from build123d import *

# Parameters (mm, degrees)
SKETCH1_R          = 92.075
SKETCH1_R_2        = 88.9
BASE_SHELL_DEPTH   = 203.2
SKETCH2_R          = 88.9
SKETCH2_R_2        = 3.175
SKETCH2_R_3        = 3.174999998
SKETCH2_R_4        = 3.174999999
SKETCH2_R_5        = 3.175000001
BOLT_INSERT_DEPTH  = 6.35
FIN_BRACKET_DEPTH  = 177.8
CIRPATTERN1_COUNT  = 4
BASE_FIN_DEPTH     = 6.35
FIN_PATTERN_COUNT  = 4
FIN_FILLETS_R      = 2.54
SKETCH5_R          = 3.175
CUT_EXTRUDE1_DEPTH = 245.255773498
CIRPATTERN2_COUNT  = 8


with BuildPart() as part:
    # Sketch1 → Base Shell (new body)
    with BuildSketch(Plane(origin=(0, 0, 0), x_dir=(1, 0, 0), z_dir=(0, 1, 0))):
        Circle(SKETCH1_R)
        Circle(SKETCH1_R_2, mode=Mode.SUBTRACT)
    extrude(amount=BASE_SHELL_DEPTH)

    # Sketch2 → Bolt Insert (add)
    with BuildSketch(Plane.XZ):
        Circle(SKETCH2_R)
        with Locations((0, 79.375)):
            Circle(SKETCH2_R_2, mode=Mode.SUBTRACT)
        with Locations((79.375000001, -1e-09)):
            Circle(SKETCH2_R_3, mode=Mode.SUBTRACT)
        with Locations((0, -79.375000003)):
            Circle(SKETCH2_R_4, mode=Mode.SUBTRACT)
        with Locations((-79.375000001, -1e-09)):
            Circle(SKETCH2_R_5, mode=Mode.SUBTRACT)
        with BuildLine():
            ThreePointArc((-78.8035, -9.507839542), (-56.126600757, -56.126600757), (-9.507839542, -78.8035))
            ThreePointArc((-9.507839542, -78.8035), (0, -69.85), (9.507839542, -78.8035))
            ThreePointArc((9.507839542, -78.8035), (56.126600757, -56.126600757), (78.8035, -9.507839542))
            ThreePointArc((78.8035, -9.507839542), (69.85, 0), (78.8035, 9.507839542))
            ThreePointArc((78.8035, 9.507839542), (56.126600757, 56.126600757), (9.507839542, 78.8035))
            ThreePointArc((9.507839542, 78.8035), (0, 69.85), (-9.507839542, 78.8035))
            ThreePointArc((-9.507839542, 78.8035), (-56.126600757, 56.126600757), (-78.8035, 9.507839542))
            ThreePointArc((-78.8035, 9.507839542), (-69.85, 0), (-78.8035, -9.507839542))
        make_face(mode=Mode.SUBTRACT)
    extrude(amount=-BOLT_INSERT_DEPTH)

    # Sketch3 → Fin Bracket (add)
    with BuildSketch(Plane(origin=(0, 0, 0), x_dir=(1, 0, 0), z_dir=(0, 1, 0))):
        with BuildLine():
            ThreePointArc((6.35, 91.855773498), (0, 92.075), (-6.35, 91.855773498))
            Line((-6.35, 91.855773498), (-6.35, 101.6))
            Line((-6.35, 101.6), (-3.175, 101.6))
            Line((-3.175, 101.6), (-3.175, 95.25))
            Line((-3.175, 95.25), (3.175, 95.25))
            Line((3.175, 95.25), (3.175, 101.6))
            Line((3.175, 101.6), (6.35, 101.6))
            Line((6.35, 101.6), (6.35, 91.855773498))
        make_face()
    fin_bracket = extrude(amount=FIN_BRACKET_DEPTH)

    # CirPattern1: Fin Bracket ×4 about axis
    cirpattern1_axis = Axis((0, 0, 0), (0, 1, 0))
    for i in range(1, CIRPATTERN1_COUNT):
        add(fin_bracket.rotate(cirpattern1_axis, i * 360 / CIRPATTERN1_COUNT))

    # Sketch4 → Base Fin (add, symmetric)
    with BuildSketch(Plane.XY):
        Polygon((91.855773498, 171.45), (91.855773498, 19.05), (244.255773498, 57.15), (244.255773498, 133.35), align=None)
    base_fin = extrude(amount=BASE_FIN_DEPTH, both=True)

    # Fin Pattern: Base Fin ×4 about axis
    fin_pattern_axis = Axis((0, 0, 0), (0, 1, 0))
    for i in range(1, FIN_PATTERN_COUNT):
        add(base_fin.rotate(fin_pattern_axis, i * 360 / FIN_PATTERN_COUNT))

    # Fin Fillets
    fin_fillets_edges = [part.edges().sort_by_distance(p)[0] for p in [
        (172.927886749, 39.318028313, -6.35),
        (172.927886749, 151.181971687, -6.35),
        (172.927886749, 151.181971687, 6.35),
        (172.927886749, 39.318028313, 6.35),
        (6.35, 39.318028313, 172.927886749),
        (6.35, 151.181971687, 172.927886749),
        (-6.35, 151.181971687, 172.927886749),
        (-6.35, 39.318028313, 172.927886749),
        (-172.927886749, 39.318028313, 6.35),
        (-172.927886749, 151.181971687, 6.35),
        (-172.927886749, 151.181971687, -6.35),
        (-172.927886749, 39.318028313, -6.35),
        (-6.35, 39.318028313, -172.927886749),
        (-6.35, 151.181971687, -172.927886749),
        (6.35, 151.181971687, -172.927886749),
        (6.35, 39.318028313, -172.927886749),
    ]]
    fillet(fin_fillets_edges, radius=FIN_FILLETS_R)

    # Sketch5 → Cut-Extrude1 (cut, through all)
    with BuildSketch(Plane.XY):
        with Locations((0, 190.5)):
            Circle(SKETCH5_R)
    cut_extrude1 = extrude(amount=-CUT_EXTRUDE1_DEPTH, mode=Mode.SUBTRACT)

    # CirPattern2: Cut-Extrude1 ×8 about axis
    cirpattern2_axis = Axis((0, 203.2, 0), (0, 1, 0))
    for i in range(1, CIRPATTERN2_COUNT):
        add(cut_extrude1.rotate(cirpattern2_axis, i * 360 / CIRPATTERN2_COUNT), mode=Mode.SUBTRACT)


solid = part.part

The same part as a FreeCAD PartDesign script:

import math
import FreeCAD as App
import Part
import Sketcher
from FreeCAD import Vector
Q = App.Units.Quantity


def edges_at(feature, points):
    """Names of the edges that pass closest to the given points."""
    edges = feature.Shape.Edges
    near = lambda p: min(range(len(edges)), key=lambda i: edges[i].distToShape(Part.Vertex(*p))[0])
    return sorted({f"Edge{near(p) + 1}" for p in points})


def add_polygon(sketch, points):
    """Adds a closed chain of lines whose ends are joined by coincident constraints."""
    first, n = sketch.GeometryCount, len(points)
    for a, b in zip(points, points[1:] + points[:1]):
        sketch.addGeometry(Part.LineSegment(App.Vector(*a, 0), App.Vector(*b, 0)), False)
    for i in range(n):
        sketch.addConstraint(Sketcher.Constraint("Coincident", first + i, 2, first + (i + 1) % n, 1))

doc = App.newDocument("Part")
body = doc.addObject("PartDesign::Body", "Body")

sketch1 = body.newObject("Sketcher::SketchObject", "Sketch")
sketch1.AttachmentSupport = (doc.getObject("XZ_Plane"), [""])
sketch1.MapMode = "FlatFace"
sketch1.addGeometry(Part.Circle(Vector(0, 0, 0), Vector(0, 0, 1), 92.075), False)
sketch1.addGeometry(Part.Circle(Vector(0, 0, 0), Vector(0, 0, 1), 88.9), False)
sketch1.addConstraint(Sketcher.Constraint("Coincident", 0, 3, -1, 1))
sketch1.addConstraint(Sketcher.Constraint("Coincident", 1, 3, -1, 1))
sketch1.addConstraint(Sketcher.Constraint("Diameter", 1, Q("7 in")))
sketch1.addConstraint(Sketcher.Constraint("Diameter", 0, Q("7.25 in")))
pad1 = body.newObject("PartDesign::Pad", "Pad")
pad1.Profile = sketch1
pad1.Length = Q("8 in")
pad1.Reversed = True

sketch2 = body.newObject("Sketcher::SketchObject", "Sketch001")
sketch2.AttachmentSupport = (doc.getObject("XZ_Plane"), [""])
sketch2.MapMode = "FlatFace"
sketch2.addGeometry(Part.Circle(Vector(0, 0, 0), Vector(0, 0, 1), 88.9), False)
sketch2.addGeometry(Part.Circle(Vector(-79.375, 0, 0), Vector(0, 0, 1), 3.175), False)
sketch2.addGeometry(Part.Circle(Vector(0, -79.375, 0), Vector(0, 0, 1), 3.175), False)
sketch2.addGeometry(Part.Circle(Vector(79.375, 0, 0), Vector(0, 0, 1), 3.175), False)
sketch2.addGeometry(Part.ArcOfCircle(Part.Circle(Vector(0, 0, 0), Vector(0, 0, 1), 79.375), math.radians(-173.120374), math.radians(-96.879626)), False)
sketch2.addGeometry(Part.ArcOfCircle(Part.Circle(Vector(-79.375, 0, 0), Vector(0, 0, 1), 9.525), math.radians(-86.560187), math.radians(86.560187)), False)
sketch2.addGeometry(Part.ArcOfCircle(Part.Circle(Vector(0, 0, 0), Vector(0, 0, 1), 79.375), math.radians(96.879626), math.radians(173.120374)), False)
sketch2.addGeometry(Part.ArcOfCircle(Part.Circle(Vector(0, 79.375, 0), Vector(0, 0, 1), 9.525), math.radians(-176.560187), math.radians(-3.439813)), False)
sketch2.addGeometry(Part.ArcOfCircle(Part.Circle(Vector(0, 0, 0), Vector(0, 0, 1), 79.375), math.radians(6.879626), math.radians(83.120374)), False)
sketch2.addGeometry(Part.ArcOfCircle(Part.Circle(Vector(79.375, 0, 0), Vector(0, 0, 1), 9.525), math.radians(93.439813), math.radians(266.560187)), False)
sketch2.addGeometry(Part.ArcOfCircle(Part.Circle(Vector(0, 0, 0), Vector(0, 0, 1), 79.375), math.radians(-83.120374), math.radians(-6.879626)), False)
sketch2.addGeometry(Part.ArcOfCircle(Part.Circle(Vector(0, -79.375, 0), Vector(0, 0, 1), 9.525), math.radians(3.439813), math.radians(176.560187)), False)
sketch2.addGeometry(Part.Circle(Vector(0, 79.375, 0), Vector(0, 0, 1), 3.175), False)
sketch2.addConstraint(Sketcher.Constraint("Coincident", 4, 1, 5, 1))
sketch2.addConstraint(Sketcher.Constraint("Coincident", 5, 2, 6, 2))
sketch2.addConstraint(Sketcher.Constraint("Coincident", 6, 1, 7, 1))
sketch2.addConstraint(Sketcher.Constraint("Coincident", 7, 2, 8, 2))
sketch2.addConstraint(Sketcher.Constraint("Coincident", 8, 1, 9, 1))
sketch2.addConstraint(Sketcher.Constraint("Coincident", 9, 2, 10, 2))
sketch2.addConstraint(Sketcher.Constraint("Coincident", 10, 1, 11, 1))
sketch2.addConstraint(Sketcher.Constraint("Coincident", 11, 2, 4, 2))
sketch2.addConstraint(Sketcher.Constraint("Coincident", 0, 3, -1, 1))
sketch2.addConstraint(Sketcher.Constraint("Coincident", 4, 3, -1, 1))
sketch2.addConstraint(Sketcher.Constraint("Coincident", 6, 3, -1, 1))
sketch2.addConstraint(Sketcher.Constraint("Coincident", 8, 3, -1, 1))
sketch2.addConstraint(Sketcher.Constraint("Coincident", 10, 3, -1, 1))
sketch2.addConstraint(Sketcher.Constraint("Coincident", 5, 3, 1, 3))
sketch2.addConstraint(Sketcher.Constraint("Coincident", 9, 3, 3, 3))
sketch2.addConstraint(Sketcher.Constraint("Coincident", 11, 3, 2, 3))
sketch2.addConstraint(Sketcher.Constraint("Coincident", 12, 3, 7, 3))
sketch2.addConstraint(Sketcher.Constraint("Equal", 1, 2))
sketch2.addConstraint(Sketcher.Constraint("Equal", 2, 3))
sketch2.addConstraint(Sketcher.Constraint("Equal", 4, 6))
sketch2.addConstraint(Sketcher.Constraint("Equal", 5, 7))
sketch2.addConstraint(Sketcher.Constraint("Equal", 6, 8))
sketch2.addConstraint(Sketcher.Constraint("Equal", 7, 9))
sketch2.addConstraint(Sketcher.Constraint("Equal", 8, 10))
sketch2.addConstraint(Sketcher.Constraint("Equal", 9, 11))
sketch2.addConstraint(Sketcher.Constraint("Equal", 3, 12))
sketch2.addConstraint(Sketcher.Constraint("Symmetric", 1, 3, 3, 3, -1, 1))
sketch2.addConstraint(Sketcher.Constraint("Symmetric", 2, 3, 7, 3, -1, 1))
sketch2.addConstraint(Sketcher.Constraint("PointOnObject", 1, 3, -1))
sketch2.addConstraint(Sketcher.Constraint("PointOnObject", 2, 3, -2))
sketch2.addConstraint(Sketcher.Constraint("Diameter", 0, Q("7 in")))
sketch2.addConstraint(Sketcher.Constraint("Diameter", 1, Q("0.25 in")))
sketch2.addConstraint(Sketcher.Constraint("Radius", 4, Q("3.125 in")))
sketch2.addConstraint(Sketcher.Constraint("Radius", 5, Q("0.375 in")))
sketch2.addConstraint(Sketcher.Constraint("DistanceX", 1, 3, 3, 3, Q("6.25 in")))
sketch2.addConstraint(Sketcher.Constraint("DistanceY", 2, 3, -1, 1, Q("3.125 in")))
pad2 = body.newObject("PartDesign::Pad", "Pad001")
pad2.Profile = sketch2
pad2.Length = Q("0.25 in")
pad2.Reversed = True

sketch3 = body.newObject("Sketcher::SketchObject", "Sketch002")
sketch3.AttachmentSupport = (doc.getObject("XZ_Plane"), [""])
sketch3.MapMode = "FlatFace"
sketch3.addGeometry(Part.ArcOfCircle(Part.Circle(Vector(0, 0, 0), Vector(0, 0, 1), 92.075), math.radians(-93.954572), math.radians(-86.045428)), False)
sketch3.addGeometry(Part.LineSegment(Vector(6.35, -91.855773, 0), Vector(6.35, -101.6, 0)), False)
sketch3.addGeometry(Part.LineSegment(Vector(6.35, -101.6, 0), Vector(3.175, -101.6, 0)), False)
sketch3.addGeometry(Part.LineSegment(Vector(3.175, -101.6, 0), Vector(3.175, -95.25, 0)), False)
sketch3.addGeometry(Part.LineSegment(Vector(3.175, -95.25, 0), Vector(-3.175, -95.25, 0)), False)
sketch3.addGeometry(Part.LineSegment(Vector(-3.175, -95.25, 0), Vector(-3.175, -101.6, 0)), False)
sketch3.addGeometry(Part.LineSegment(Vector(-3.175, -101.6, 0), Vector(-6.35, -101.6, 0)), False)
sketch3.addGeometry(Part.LineSegment(Vector(-6.35, -101.6, 0), Vector(-6.35, -91.855773, 0)), False)
sketch3.addConstraint(Sketcher.Constraint("Coincident", 0, 2, 1, 1))
sketch3.addConstraint(Sketcher.Constraint("Coincident", 1, 2, 2, 1))
sketch3.addConstraint(Sketcher.Constraint("Coincident", 2, 2, 3, 1))
sketch3.addConstraint(Sketcher.Constraint("Coincident", 3, 2, 4, 1))
sketch3.addConstraint(Sketcher.Constraint("Coincident", 4, 2, 5, 1))
sketch3.addConstraint(Sketcher.Constraint("Coincident", 5, 2, 6, 1))
sketch3.addConstraint(Sketcher.Constraint("Coincident", 6, 2, 7, 1))
sketch3.addConstraint(Sketcher.Constraint("Coincident", 7, 2, 0, 1))
sketch3.addConstraint(Sketcher.Constraint("Vertical", 1))
sketch3.addConstraint(Sketcher.Constraint("Horizontal", 2))
sketch3.addConstraint(Sketcher.Constraint("Vertical", 3))
sketch3.addConstraint(Sketcher.Constraint("Horizontal", 4))
sketch3.addConstraint(Sketcher.Constraint("Vertical", 5))
sketch3.addConstraint(Sketcher.Constraint("Horizontal", 6))
sketch3.addConstraint(Sketcher.Constraint("Vertical", 7))
sketch3.addConstraint(Sketcher.Constraint("Coincident", 0, 3, -1, 1))
sketch3.addConstraint(Sketcher.Constraint("Symmetric", 2, 2, 5, 2, -2))
sketch3.addConstraint(Sketcher.Constraint("Horizontal", 0, 2, 7, 2))
sketch3.addConstraint(Sketcher.Constraint("Equal", 4, 3))
sketch3.addConstraint(Sketcher.Constraint("DistanceY", 1, 2, -1, 1, Q("4 in")))
sketch3.addConstraint(Sketcher.Constraint("Radius", 0, Q("3.625 in")))
sketch3.addConstraint(Sketcher.Constraint("DistanceX", 4, 2, 4, 1, Q("0.25 in")))
sketch3.addConstraint(Sketcher.Constraint("DistanceX", 6, 2, 1, 2, Q("0.5 in")))
pad3 = body.newObject("PartDesign::Pad", "Pad002")
pad3.Profile = sketch3
pad3.Length = Q("7 in")
pad3.Reversed = True
doc.recompute()

polarpattern = body.newObject("PartDesign::PolarPattern", "PolarPattern")
polarpattern.Originals = [pad3]
polarpattern.Axis = (doc.getObject("Y_Axis"), [""])
polarpattern.Angle = 360
polarpattern.Occurrences = 4
body.Tip = polarpattern

sketch4 = body.newObject("Sketcher::SketchObject", "Sketch003")
sketch4.AttachmentSupport = (doc.getObject("XY_Plane"), [""])
sketch4.MapMode = "FlatFace"
add_polygon(sketch4, [(91.855773, 171.45), (91.855773, 19.05), (244.255773, 57.15), (244.255773, 133.35)])
sketch4.addConstraint(Sketcher.Constraint("Vertical", 0))
sketch4.addConstraint(Sketcher.Constraint("Vertical", 2))
sketch4.addConstraint(Sketcher.Constraint("Equal", 1, 3))
sketch4.addConstraint(Sketcher.Constraint("DistanceY", 0, 2, 0, 1, Q("6 in")))
sketch4.addConstraint(Sketcher.Constraint("DistanceY", 2, 1, 2, 2, Q("3 in")))
sketch4.addConstraint(Sketcher.Constraint("DistanceX", 0, 2, 1, 2, Q("6 in")))
sketch4.addConstraint(Sketcher.Constraint("DistanceY", -1, 1, 0, 2, Q("0.75 in")))
sketch4.addConstraint(Sketcher.Constraint("DistanceX", -1, 1, 0, 2, 91.855773))
pad4 = body.newObject("PartDesign::Pad", "Pad003")
pad4.Profile = sketch4
pad4.Length = Q("0.5 in")
pad4.Midplane = True
doc.recompute()

polarpattern2 = body.newObject("PartDesign::PolarPattern", "PolarPattern001")
polarpattern2.Originals = [pad4]
polarpattern2.Axis = (doc.getObject("Y_Axis"), [""])
polarpattern2.Angle = 360
polarpattern2.Occurrences = 4
body.Tip = polarpattern2
doc.recompute()

fillet = body.newObject("PartDesign::Fillet", "Fillet")
fillet.Base = (polarpattern2, edges_at(polarpattern2, [
    (172.928, 39.318, -6.35),
    (172.928, 151.182, -6.35),
    (172.928, 151.182, 6.35),
    (172.928, 39.318, 6.35),
    (6.35, 39.318, 172.928),
    (6.35, 151.182, 172.928),
    (-6.35, 151.182, 172.928),
    (-6.35, 39.318, 172.928),
    (-172.928, 39.318, 6.35),
    (-172.928, 151.182, 6.35),
    (-172.928, 151.182, -6.35),
    (-172.928, 39.318, -6.35),
    (-6.35, 39.318, -172.928),
    (-6.35, 151.182, -172.928),
    (6.35, 151.182, -172.928),
    (6.35, 39.318, -172.928),
]))
fillet.Radius = Q("0.1 in")

sketch5 = body.newObject("Sketcher::SketchObject", "Sketch004")
sketch5.AttachmentSupport = (doc.getObject("XY_Plane"), [""])
sketch5.MapMode = "FlatFace"
sketch5.addGeometry(Part.Circle(Vector(0, 190.5, 0), Vector(0, 0, 1), 3.175), False)
sketch5.addConstraint(Sketcher.Constraint("PointOnObject", 0, 3, -2))
sketch5.addConstraint(Sketcher.Constraint("Diameter", 0, Q("0.25 in")))
sketch5.addConstraint(Sketcher.Constraint("DistanceY", -1, 1, 0, 3, Q("7.5 in")))
pocket1 = body.newObject("PartDesign::Pocket", "Pocket")
pocket1.Profile = sketch5
pocket1.Type = "ThroughAll"
doc.recompute()

polarpattern3 = body.newObject("PartDesign::PolarPattern", "PolarPattern002")
polarpattern3.Originals = [pocket1]
polarpattern3.Axis = (doc.getObject("Y_Axis"), [""])
polarpattern3.Angle = 360
polarpattern3.Occurrences = 8
body.Tip = polarpattern3

doc.recompute()
